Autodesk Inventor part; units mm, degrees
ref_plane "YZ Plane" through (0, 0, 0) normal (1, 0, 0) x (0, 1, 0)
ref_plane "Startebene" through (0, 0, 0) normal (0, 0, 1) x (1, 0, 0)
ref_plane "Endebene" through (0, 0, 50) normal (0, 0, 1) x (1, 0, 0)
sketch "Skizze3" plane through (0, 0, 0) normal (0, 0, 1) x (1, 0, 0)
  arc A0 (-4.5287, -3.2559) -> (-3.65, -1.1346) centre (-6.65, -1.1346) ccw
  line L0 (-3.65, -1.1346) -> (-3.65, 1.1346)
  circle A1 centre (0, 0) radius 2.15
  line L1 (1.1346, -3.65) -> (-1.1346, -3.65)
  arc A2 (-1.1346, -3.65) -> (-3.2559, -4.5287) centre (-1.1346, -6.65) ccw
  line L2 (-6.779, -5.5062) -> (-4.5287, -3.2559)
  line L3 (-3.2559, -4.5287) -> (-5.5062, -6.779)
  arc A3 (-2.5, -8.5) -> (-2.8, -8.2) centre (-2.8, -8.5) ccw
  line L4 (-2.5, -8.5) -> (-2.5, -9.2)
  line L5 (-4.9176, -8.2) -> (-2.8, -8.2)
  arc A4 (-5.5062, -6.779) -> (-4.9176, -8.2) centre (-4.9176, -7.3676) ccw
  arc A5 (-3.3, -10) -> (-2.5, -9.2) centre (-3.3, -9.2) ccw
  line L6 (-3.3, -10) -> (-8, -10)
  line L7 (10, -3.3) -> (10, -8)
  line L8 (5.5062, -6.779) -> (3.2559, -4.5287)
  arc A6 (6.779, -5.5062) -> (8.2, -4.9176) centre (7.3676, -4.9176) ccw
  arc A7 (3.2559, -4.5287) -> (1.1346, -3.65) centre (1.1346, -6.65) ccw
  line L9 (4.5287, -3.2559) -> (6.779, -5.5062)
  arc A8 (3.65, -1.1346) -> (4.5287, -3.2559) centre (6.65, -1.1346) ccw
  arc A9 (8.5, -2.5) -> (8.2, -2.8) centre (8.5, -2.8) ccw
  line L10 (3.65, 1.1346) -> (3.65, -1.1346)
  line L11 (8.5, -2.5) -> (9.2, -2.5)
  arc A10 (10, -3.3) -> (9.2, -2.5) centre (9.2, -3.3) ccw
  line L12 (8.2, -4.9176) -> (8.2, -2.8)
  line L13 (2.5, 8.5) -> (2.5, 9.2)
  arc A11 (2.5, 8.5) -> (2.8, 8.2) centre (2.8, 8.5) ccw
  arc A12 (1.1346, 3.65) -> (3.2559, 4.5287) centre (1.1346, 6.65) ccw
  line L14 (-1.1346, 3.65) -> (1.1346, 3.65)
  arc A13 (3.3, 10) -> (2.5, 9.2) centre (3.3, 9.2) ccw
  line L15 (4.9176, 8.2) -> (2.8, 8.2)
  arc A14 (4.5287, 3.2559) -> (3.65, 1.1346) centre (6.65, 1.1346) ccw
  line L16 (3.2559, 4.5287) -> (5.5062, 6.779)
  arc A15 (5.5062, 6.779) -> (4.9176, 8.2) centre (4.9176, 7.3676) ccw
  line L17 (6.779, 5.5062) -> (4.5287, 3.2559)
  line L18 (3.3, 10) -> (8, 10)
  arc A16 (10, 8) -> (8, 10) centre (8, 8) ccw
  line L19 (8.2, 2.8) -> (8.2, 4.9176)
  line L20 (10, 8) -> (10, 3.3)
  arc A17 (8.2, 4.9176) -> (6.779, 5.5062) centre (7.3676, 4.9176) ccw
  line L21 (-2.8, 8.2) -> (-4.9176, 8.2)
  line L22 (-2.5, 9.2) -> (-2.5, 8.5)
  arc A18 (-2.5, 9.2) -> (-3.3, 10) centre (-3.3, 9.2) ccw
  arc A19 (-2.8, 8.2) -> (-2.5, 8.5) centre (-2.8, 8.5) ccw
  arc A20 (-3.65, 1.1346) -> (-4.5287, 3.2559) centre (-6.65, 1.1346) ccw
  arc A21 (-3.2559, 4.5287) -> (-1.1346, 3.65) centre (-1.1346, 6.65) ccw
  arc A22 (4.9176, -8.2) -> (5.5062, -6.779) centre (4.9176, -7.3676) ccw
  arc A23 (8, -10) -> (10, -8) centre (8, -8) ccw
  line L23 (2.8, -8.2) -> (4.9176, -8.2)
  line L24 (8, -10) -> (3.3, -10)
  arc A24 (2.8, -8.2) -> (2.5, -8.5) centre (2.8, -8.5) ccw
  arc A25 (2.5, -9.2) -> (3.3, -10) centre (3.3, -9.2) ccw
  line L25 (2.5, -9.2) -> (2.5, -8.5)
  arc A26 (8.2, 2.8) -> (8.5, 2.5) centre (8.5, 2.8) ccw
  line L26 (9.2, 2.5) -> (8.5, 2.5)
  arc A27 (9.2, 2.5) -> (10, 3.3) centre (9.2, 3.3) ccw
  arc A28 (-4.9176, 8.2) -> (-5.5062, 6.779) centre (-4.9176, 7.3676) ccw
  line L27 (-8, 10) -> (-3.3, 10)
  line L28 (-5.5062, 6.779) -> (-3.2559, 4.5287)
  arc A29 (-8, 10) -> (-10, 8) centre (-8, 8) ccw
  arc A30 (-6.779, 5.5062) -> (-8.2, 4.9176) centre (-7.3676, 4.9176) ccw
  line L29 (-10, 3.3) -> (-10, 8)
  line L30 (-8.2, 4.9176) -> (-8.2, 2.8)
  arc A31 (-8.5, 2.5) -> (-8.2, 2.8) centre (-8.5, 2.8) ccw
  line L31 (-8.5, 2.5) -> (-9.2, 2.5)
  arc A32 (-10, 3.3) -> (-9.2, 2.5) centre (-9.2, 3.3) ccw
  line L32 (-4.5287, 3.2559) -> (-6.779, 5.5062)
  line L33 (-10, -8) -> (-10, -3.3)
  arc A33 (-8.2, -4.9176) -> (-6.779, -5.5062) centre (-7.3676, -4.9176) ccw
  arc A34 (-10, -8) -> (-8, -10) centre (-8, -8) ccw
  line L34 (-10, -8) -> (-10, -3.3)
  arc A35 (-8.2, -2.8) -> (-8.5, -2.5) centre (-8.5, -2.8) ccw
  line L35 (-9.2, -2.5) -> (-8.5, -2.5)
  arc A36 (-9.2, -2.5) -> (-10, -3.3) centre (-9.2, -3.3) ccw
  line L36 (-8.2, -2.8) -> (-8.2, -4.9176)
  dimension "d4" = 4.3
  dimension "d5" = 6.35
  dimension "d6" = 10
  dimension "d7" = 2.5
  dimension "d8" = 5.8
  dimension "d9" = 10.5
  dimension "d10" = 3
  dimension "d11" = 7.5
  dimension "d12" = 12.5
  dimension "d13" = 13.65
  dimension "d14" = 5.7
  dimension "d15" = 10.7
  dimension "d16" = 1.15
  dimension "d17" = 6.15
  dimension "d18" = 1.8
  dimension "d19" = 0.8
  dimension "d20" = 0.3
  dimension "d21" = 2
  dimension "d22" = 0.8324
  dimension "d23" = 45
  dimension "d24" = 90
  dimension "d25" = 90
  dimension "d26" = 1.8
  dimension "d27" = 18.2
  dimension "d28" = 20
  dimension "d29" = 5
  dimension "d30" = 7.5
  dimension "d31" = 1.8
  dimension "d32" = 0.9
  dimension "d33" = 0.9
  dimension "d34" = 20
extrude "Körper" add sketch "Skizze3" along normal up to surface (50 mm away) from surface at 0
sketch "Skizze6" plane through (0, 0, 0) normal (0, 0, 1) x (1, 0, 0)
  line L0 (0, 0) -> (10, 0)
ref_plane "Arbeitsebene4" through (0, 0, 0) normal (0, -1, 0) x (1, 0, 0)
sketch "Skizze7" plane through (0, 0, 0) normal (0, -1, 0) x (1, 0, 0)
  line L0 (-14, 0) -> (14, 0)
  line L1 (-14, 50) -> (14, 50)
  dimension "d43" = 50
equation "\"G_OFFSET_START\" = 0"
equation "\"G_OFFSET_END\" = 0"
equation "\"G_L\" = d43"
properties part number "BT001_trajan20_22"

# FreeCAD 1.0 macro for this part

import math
import FreeCAD as App
import Part
import Sketcher
from FreeCAD import Vector

doc = App.newDocument("Part")
body = doc.addObject("PartDesign::Body", "Body")

# Sketch on XY plane
sketch1 = doc.addObject("Sketcher::SketchObject", "Sketch")
body.addObject(sketch1)
sketch1.AttachmentSupport = (doc.XY_Plane, [""])
sketch1.MapMode = "FlatFace"
sketch1.addGeometry([
    Part.ArcOfCircle(Part.Circle(Vector(-6.65, -1.13, 0), Vector(0, 0, 1), 3), math.radians(-45), math.radians(0)),  # 0
    Part.LineSegment(Vector(-4.53, -3.26, 0), Vector(-6.78, -5.51, 0)),  # 1
    Part.ArcOfCircle(Part.Circle(Vector(-7.37, -4.92, 0), Vector(0, 0, 1), 0.83), math.radians(180), math.radians(315)),  # 2
    Part.LineSegment(Vector(-8.2, -4.92, 0), Vector(-8.2, -2.8, 0)),  # 3
    Part.ArcOfCircle(Part.Circle(Vector(-8.5, -2.8, 0), Vector(0, 0, 1), 0.3), math.radians(0), math.radians(90)),  # 4
    Part.LineSegment(Vector(-8.5, -2.5, 0), Vector(-9.2, -2.5, 0)),  # 5
    Part.ArcOfCircle(Part.Circle(Vector(-9.2, -3.3, 0), Vector(0, 0, 1), 0.8), math.radians(90), math.radians(180)),  # 6
    Part.LineSegment(Vector(-10, -3.3, 0), Vector(-10, -8, 0)),  # 7
    Part.ArcOfCircle(Part.Circle(Vector(-8, -8, 0), Vector(0, 0, 1), 2), math.radians(180), math.radians(270)),  # 8
    Part.LineSegment(Vector(-8, -10, 0), Vector(-3.3, -10, 0)),  # 9
    Part.ArcOfCircle(Part.Circle(Vector(-3.3, -9.2, 0), Vector(0, 0, 1), 0.8), math.radians(-90), math.radians(0)),  # 10
    Part.LineSegment(Vector(-2.5, -9.2, 0), Vector(-2.5, -8.5, 0)),  # 11
    Part.ArcOfCircle(Part.Circle(Vector(-2.8, -8.5, 0), Vector(0, 0, 1), 0.3), math.radians(0), math.radians(90)),  # 12
    Part.LineSegment(Vector(-2.8, -8.2, 0), Vector(-4.92, -8.2, 0)),  # 13
    Part.ArcOfCircle(Part.Circle(Vector(-4.92, -7.37, 0), Vector(0, 0, 1), 0.83), math.radians(135), math.radians(270)),  # 14
    Part.LineSegment(Vector(-5.51, -6.78, 0), Vector(-3.26, -4.53, 0)),  # 15
    Part.ArcOfCircle(Part.Circle(Vector(-1.13, -6.65, 0), Vector(0, 0, 1), 3), math.radians(90), math.radians(135)),  # 16
    Part.LineSegment(Vector(-1.13, -3.65, 0), Vector(1.13, -3.65, 0)),  # 17
    Part.ArcOfCircle(Part.Circle(Vector(1.13, -6.65, 0), Vector(0, 0, 1), 3), math.radians(45), math.radians(90)),  # 18
    Part.LineSegment(Vector(3.26, -4.53, 0), Vector(5.51, -6.78, 0)),  # 19
    Part.ArcOfCircle(Part.Circle(Vector(4.92, -7.37, 0), Vector(0, 0, 1), 0.83), math.radians(-90), math.radians(45)),  # 20
    Part.LineSegment(Vector(4.92, -8.2, 0), Vector(2.8, -8.2, 0)),  # 21
    Part.ArcOfCircle(Part.Circle(Vector(2.8, -8.5, 0), Vector(0, 0, 1), 0.3), math.radians(90), math.radians(180)),  # 22
    Part.LineSegment(Vector(2.5, -8.5, 0), Vector(2.5, -9.2, 0)),  # 23
    Part.ArcOfCircle(Part.Circle(Vector(3.3, -9.2, 0), Vector(0, 0, 1), 0.8), math.radians(180), math.radians(270)),  # 24
    Part.LineSegment(Vector(3.3, -10, 0), Vector(8, -10, 0)),  # 25
    Part.ArcOfCircle(Part.Circle(Vector(8, -8, 0), Vector(0, 0, 1), 2), math.radians(-90), math.radians(0)),  # 26
    Part.LineSegment(Vector(10, -8, 0), Vector(10, -3.3, 0)),  # 27
    Part.ArcOfCircle(Part.Circle(Vector(9.2, -3.3, 0), Vector(0, 0, 1), 0.8), math.radians(0), math.radians(90)),  # 28
    Part.LineSegment(Vector(9.2, -2.5, 0), Vector(8.5, -2.5, 0)),  # 29
    Part.ArcOfCircle(Part.Circle(Vector(8.5, -2.8, 0), Vector(0, 0, 1), 0.3), math.radians(90), math.radians(180)),  # 30
    Part.LineSegment(Vector(8.2, -2.8, 0), Vector(8.2, -4.92, 0)),  # 31
    Part.ArcOfCircle(Part.Circle(Vector(7.37, -4.92, 0), Vector(0, 0, 1), 0.83), math.radians(-135), math.radians(0)),  # 32
    Part.LineSegment(Vector(6.78, -5.51, 0), Vector(4.53, -3.26, 0)),  # 33
    Part.ArcOfCircle(Part.Circle(Vector(6.65, -1.13, 0), Vector(0, 0, 1), 3), math.radians(180), math.radians(225)),  # 34
    Part.LineSegment(Vector(3.65, -1.13, 0), Vector(3.65, 1.13, 0)),  # 35
    Part.ArcOfCircle(Part.Circle(Vector(6.65, 1.13, 0), Vector(0, 0, 1), 3), math.radians(135), math.radians(180)),  # 36
    Part.LineSegment(Vector(4.53, 3.26, 0), Vector(6.78, 5.51, 0)),  # 37
    Part.ArcOfCircle(Part.Circle(Vector(7.37, 4.92, 0), Vector(0, 0, 1), 0.83), math.radians(0), math.radians(135)),  # 38
    Part.LineSegment(Vector(8.2, 4.92, 0), Vector(8.2, 2.8, 0)),  # 39
    Part.ArcOfCircle(Part.Circle(Vector(8.5, 2.8, 0), Vector(0, 0, 1), 0.3), math.radians(180), math.radians(270)),  # 40
    Part.LineSegment(Vector(8.5, 2.5, 0), Vector(9.2, 2.5, 0)),  # 41
    Part.ArcOfCircle(Part.Circle(Vector(9.2, 3.3, 0), Vector(0, 0, 1), 0.8), math.radians(-90), math.radians(0)),  # 42
    Part.LineSegment(Vector(10, 3.3, 0), Vector(10, 8, 0)),  # 43
    Part.ArcOfCircle(Part.Circle(Vector(8, 8, 0), Vector(0, 0, 1), 2), math.radians(0), math.radians(90)),  # 44
    Part.LineSegment(Vector(8, 10, 0), Vector(3.3, 10, 0)),  # 45
    Part.ArcOfCircle(Part.Circle(Vector(3.3, 9.2, 0), Vector(0, 0, 1), 0.8), math.radians(90), math.radians(180)),  # 46
    Part.LineSegment(Vector(2.5, 9.2, 0), Vector(2.5, 8.5, 0)),  # 47
    Part.ArcOfCircle(Part.Circle(Vector(2.8, 8.5, 0), Vector(0, 0, 1), 0.3), math.radians(180), math.radians(270)),  # 48
    Part.LineSegment(Vector(2.8, 8.2, 0), Vector(4.92, 8.2, 0)),  # 49
    Part.ArcOfCircle(Part.Circle(Vector(4.92, 7.37, 0), Vector(0, 0, 1), 0.83), math.radians(-45), math.radians(90)),  # 50
    Part.LineSegment(Vector(5.51, 6.78, 0), Vector(3.26, 4.53, 0)),  # 51
    Part.ArcOfCircle(Part.Circle(Vector(1.13, 6.65, 0), Vector(0, 0, 1), 3), math.radians(-90), math.radians(-45)),  # 52
    Part.LineSegment(Vector(1.13, 3.65, 0), Vector(-1.13, 3.65, 0)),  # 53
    Part.ArcOfCircle(Part.Circle(Vector(-1.13, 6.65, 0), Vector(0, 0, 1), 3), math.radians(-135), math.radians(-90)),  # 54
    Part.LineSegment(Vector(-3.26, 4.53, 0), Vector(-5.51, 6.78, 0)),  # 55
    Part.ArcOfCircle(Part.Circle(Vector(-4.92, 7.37, 0), Vector(0, 0, 1), 0.83), math.radians(90), math.radians(225)),  # 56
    Part.LineSegment(Vector(-4.92, 8.2, 0), Vector(-2.8, 8.2, 0)),  # 57
    Part.ArcOfCircle(Part.Circle(Vector(-2.8, 8.5, 0), Vector(0, 0, 1), 0.3), math.radians(-90), math.radians(0)),  # 58
    Part.LineSegment(Vector(-2.5, 8.5, 0), Vector(-2.5, 9.2, 0)),  # 59
    Part.ArcOfCircle(Part.Circle(Vector(-3.3, 9.2, 0), Vector(0, 0, 1), 0.8), math.radians(0), math.radians(90)),  # 60
    Part.LineSegment(Vector(-3.3, 10, 0), Vector(-8, 10, 0)),  # 61
    Part.ArcOfCircle(Part.Circle(Vector(-8, 8, 0), Vector(0, 0, 1), 2), math.radians(90), math.radians(180)),  # 62
    Part.LineSegment(Vector(-10, 8, 0), Vector(-10, 3.3, 0)),  # 63
    Part.ArcOfCircle(Part.Circle(Vector(-9.2, 3.3, 0), Vector(0, 0, 1), 0.8), math.radians(180), math.radians(270)),  # 64
    Part.LineSegment(Vector(-9.2, 2.5, 0), Vector(-8.5, 2.5, 0)),  # 65
    Part.ArcOfCircle(Part.Circle(Vector(-8.5, 2.8, 0), Vector(0, 0, 1), 0.3), math.radians(-90), math.radians(0)),  # 66
    Part.LineSegment(Vector(-8.2, 2.8, 0), Vector(-8.2, 4.92, 0)),  # 67
    Part.ArcOfCircle(Part.Circle(Vector(-7.37, 4.92, 0), Vector(0, 0, 1), 0.83), math.radians(45), math.radians(180)),  # 68
    Part.LineSegment(Vector(-6.78, 5.51, 0), Vector(-4.53, 3.26, 0)),  # 69
    Part.ArcOfCircle(Part.Circle(Vector(-6.65, 1.13, 0), Vector(0, 0, 1), 3), math.radians(0), math.radians(45)),  # 70
    Part.LineSegment(Vector(-3.65, 1.13, 0), Vector(-3.65, -1.13, 0)),  # 71
    Part.Circle(Vector(0, 0, 0), Vector(0, 0, 1), 2.15),  # 72
], False)
sketch1.addConstraint([
    Sketcher.Constraint("Tangent", 0, 1, 1, 1),
    Sketcher.Constraint("Tangent", 1, 2, 2, 2),
    Sketcher.Constraint("Tangent", 2, 1, 3, 1),
    Sketcher.Constraint("Tangent", 3, 2, 4, 1),
    Sketcher.Constraint("Tangent", 4, 2, 5, 1),
    Sketcher.Constraint("Tangent", 5, 2, 6, 1),
    Sketcher.Constraint("Tangent", 6, 2, 7, 1),
    Sketcher.Constraint("Tangent", 7, 2, 8, 1),
    Sketcher.Constraint("Tangent", 8, 2, 9, 1),
    Sketcher.Constraint("Tangent", 9, 2, 10, 1),
    Sketcher.Constraint("Tangent", 10, 2, 11, 1),
    Sketcher.Constraint("Tangent", 11, 2, 12, 1),
    Sketcher.Constraint("Tangent", 12, 2, 13, 1),
    Sketcher.Constraint("Tangent", 13, 2, 14, 2),
    Sketcher.Constraint("Tangent", 14, 1, 15, 1),
    Sketcher.Constraint("Tangent", 15, 2, 16, 2),
    Sketcher.Constraint("Tangent", 16, 1, 17, 1),
    Sketcher.Constraint("Tangent", 17, 2, 18, 2),
    Sketcher.Constraint("Tangent", 18, 1, 19, 1),
    Sketcher.Constraint("Tangent", 19, 2, 20, 2),
    Sketcher.Constraint("Tangent", 20, 1, 21, 1),
    Sketcher.Constraint("Tangent", 21, 2, 22, 1),
    Sketcher.Constraint("Tangent", 22, 2, 23, 1),
    Sketcher.Constraint("Tangent", 23, 2, 24, 1),
    Sketcher.Constraint("Tangent", 24, 2, 25, 1),
    Sketcher.Constraint("Tangent", 25, 2, 26, 1),
    Sketcher.Constraint("Tangent", 26, 2, 27, 1),
    Sketcher.Constraint("Tangent", 27, 2, 28, 1),
    Sketcher.Constraint("Tangent", 28, 2, 29, 1),
    Sketcher.Constraint("Tangent", 29, 2, 30, 1),
    Sketcher.Constraint("Tangent", 30, 2, 31, 1),
    Sketcher.Constraint("Tangent", 31, 2, 32, 2),
    Sketcher.Constraint("Tangent", 32, 1, 33, 1),
    Sketcher.Constraint("Tangent", 33, 2, 34, 2),
    Sketcher.Constraint("Tangent", 34, 1, 35, 1),
    Sketcher.Constraint("Tangent", 35, 2, 36, 2),
    Sketcher.Constraint("Tangent", 36, 1, 37, 1),
    Sketcher.Constraint("Tangent", 37, 2, 38, 2),
    Sketcher.Constraint("Tangent", 38, 1, 39, 1),
    Sketcher.Constraint("Tangent", 39, 2, 40, 1),
    Sketcher.Constraint("Tangent", 40, 2, 41, 1),
    Sketcher.Constraint("Tangent", 41, 2, 42, 1),
    Sketcher.Constraint("Tangent", 42, 2, 43, 1),
    Sketcher.Constraint("Tangent", 43, 2, 44, 1),
    Sketcher.Constraint("Tangent", 44, 2, 45, 1),
    Sketcher.Constraint("Tangent", 45, 2, 46, 1),
    Sketcher.Constraint("Tangent", 46, 2, 47, 1),
    Sketcher.Constraint("Tangent", 47, 2, 48, 1),
    Sketcher.Constraint("Tangent", 48, 2, 49, 1),
    Sketcher.Constraint("Tangent", 49, 2, 50, 2),
    Sketcher.Constraint("Tangent", 50, 1, 51, 1),
    Sketcher.Constraint("Tangent", 51, 2, 52, 2),
    Sketcher.Constraint("Tangent", 52, 1, 53, 1),
    Sketcher.Constraint("Tangent", 53, 2, 54, 2),
    Sketcher.Constraint("Tangent", 54, 1, 55, 1),
    Sketcher.Constraint("Tangent", 55, 2, 56, 2),
    Sketcher.Constraint("Tangent", 56, 1, 57, 1),
    Sketcher.Constraint("Tangent", 57, 2, 58, 1),
    Sketcher.Constraint("Tangent", 58, 2, 59, 1),
    Sketcher.Constraint("Tangent", 59, 2, 60, 1),
    Sketcher.Constraint("Tangent", 60, 2, 61, 1),
    Sketcher.Constraint("Tangent", 61, 2, 62, 1),
    Sketcher.Constraint("Tangent", 62, 2, 63, 1),
    Sketcher.Constraint("Tangent", 63, 2, 64, 1),
    Sketcher.Constraint("Tangent", 64, 2, 65, 1),
    Sketcher.Constraint("Tangent", 65, 2, 66, 1),
    Sketcher.Constraint("Tangent", 66, 2, 67, 1),
    Sketcher.Constraint("Tangent", 67, 2, 68, 2),
    Sketcher.Constraint("Tangent", 68, 1, 69, 1),
    Sketcher.Constraint("Tangent", 69, 2, 70, 2),
    Sketcher.Constraint("Tangent", 70, 1, 71, 1),
    Sketcher.Constraint("Tangent", 71, 2, 0, 2),
    Sketcher.Constraint("Vertical", 3),
    Sketcher.Constraint("Horizontal", 5),
    Sketcher.Constraint("Vertical", 7),
    Sketcher.Constraint("Horizontal", 9),
    Sketcher.Constraint("Vertical", 11),
    Sketcher.Constraint("Horizontal", 13),
    Sketcher.Constraint("Horizontal", 17),
    Sketcher.Constraint("Horizontal", 21),
    Sketcher.Constraint("Vertical", 23),
    Sketcher.Constraint("Horizontal", 25),
    Sketcher.Constraint("Vertical", 27),
    Sketcher.Constraint("Horizontal", 29),
    Sketcher.Constraint("Vertical", 31),
    Sketcher.Constraint("Vertical", 35),
    Sketcher.Constraint("Vertical", 39),
    Sketcher.Constraint("Horizontal", 41),
    Sketcher.Constraint("Vertical", 43),
    Sketcher.Constraint("Horizontal", 45),
    Sketcher.Constraint("Vertical", 47),
    Sketcher.Constraint("Horizontal", 49),
    Sketcher.Constraint("Horizontal", 53),
    Sketcher.Constraint("Horizontal", 57),
    Sketcher.Constraint("Vertical", 59),
    Sketcher.Constraint("Horizontal", 61),
    Sketcher.Constraint("Vertical", 63),
    Sketcher.Constraint("Horizontal", 65),
    Sketcher.Constraint("Vertical", 67),
    Sketcher.Constraint("Vertical", 71),
    Sketcher.Constraint("Coincident", 72, 3, -1, 1),
    Sketcher.Constraint("Equal", 6, 10),
    Sketcher.Constraint("Equal", 4, 12),
    Sketcher.Constraint("Equal", 2, 14),
    Sketcher.Constraint("Equal", 0, 16),
    Sketcher.Constraint("Equal", 16, 18),
    Sketcher.Constraint("Equal", 14, 20),
    Sketcher.Constraint("Equal", 12, 22),
    Sketcher.Constraint("Equal", 10, 24),
    Sketcher.Constraint("Equal", 8, 26),
    Sketcher.Constraint("Equal", 24, 28),
    Sketcher.Constraint("Equal", 22, 30),
    Sketcher.Constraint("Equal", 20, 32),
    Sketcher.Constraint("Equal", 18, 34),
    Sketcher.Constraint("Equal", 34, 36),
    Sketcher.Constraint("Equal", 32, 38),
    Sketcher.Constraint("Equal", 30, 40),
    Sketcher.Constraint("Equal", 28, 42),
    Sketcher.Constraint("Equal", 26, 44),
    Sketcher.Constraint("Equal", 42, 46),
    Sketcher.Constraint("Equal", 40, 48),
    Sketcher.Constraint("Equal", 38, 50),
    Sketcher.Constraint("Equal", 36, 52),
    Sketcher.Constraint("Equal", 52, 54),
    Sketcher.Constraint("Equal", 50, 56),
    Sketcher.Constraint("Equal", 48, 58),
    Sketcher.Constraint("Equal", 46, 60),
    Sketcher.Constraint("Equal", 44, 62),
    Sketcher.Constraint("Equal", 60, 64),
    Sketcher.Constraint("Equal", 58, 66),
    Sketcher.Constraint("Equal", 56, 68),
    Sketcher.Constraint("Equal", 54, 70),
    Sketcher.Constraint("Symmetric", 0, 3, 36, 3, -1, 1),
    Sketcher.Constraint("Symmetric", 2, 3, 38, 3, -1, 1),
    Sketcher.Constraint("Symmetric", 6, 3, 42, 3, -1, 1),
    Sketcher.Constraint("Symmetric", 10, 3, 46, 3, -1, 1),
    Sketcher.Constraint("Symmetric", 14, 3, 50, 3, -1, 1),
    Sketcher.Constraint("Symmetric", 16, 3, 52, 3, -1, 1),
    Sketcher.Constraint("Symmetric", 20, 3, 56, 3, -1, 1),
    Sketcher.Constraint("Symmetric", 24, 3, 60, 3, -1, 1),
    Sketcher.Constraint("Symmetric", 28, 3, 64, 3, -1, 1),
    Sketcher.Constraint("Symmetric", 32, 3, 68, 3, -1, 1),
    Sketcher.Constraint("Symmetric", 14, 3, 20, 3, -2),
    Sketcher.Constraint("Symmetric", 10, 3, 24, 3, -2),
    Sketcher.Constraint("Symmetric", 6, 3, 28, 3, -2),
    Sketcher.Constraint("Symmetric", 2, 3, 32, 3, -2),
    Sketcher.Constraint("Parallel", 1, 15),
    Sketcher.Constraint("Perpendicular", 15, 19),
    Sketcher.Constraint("Parallel", 19, 33),
    Sketcher.Constraint("Perpendicular", 51, 55),
    Sketcher.Constraint("Parallel", 55, 69),
    Sketcher.Constraint("Horizontal", 0, 3, 34, 3),
    Sketcher.Constraint("Equal", 57, 3),
    Sketcher.Constraint("Equal", 61, 7),
    Sketcher.Constraint("Equal", 65, 11),
    Sketcher.Constraint("Equal", 53, 35),
    Sketcher.Constraint("Equal", 1, 15),
    Sketcher.Constraint("Radius", 0, 3.0),
    Sketcher.Constraint("Radius", 8, 2.0),
    Sketcher.Constraint("Diameter", 72, 4.3),
    Sketcher.Constraint("Radius", 4, 0.3),
    Sketcher.Constraint("Radius", 6, 0.8),
    Sketcher.Constraint("DistanceX", 6, 2, -1, 1, 10.0),
    Sketcher.Constraint("DistanceY", 4, 2, -1, 1, 2.5),
    Sketcher.Constraint("Radius", 2, 0.8324),
    Sketcher.Constraint("DistanceX", 5, 2, 5, 1, 0.7),
    Sketcher.Constraint("DistanceX", 0, 3, -1, 1, 6.65),
    Sketcher.Constraint("DistanceX", 13, 2, 13, 1, 2.1176),
])
pad1 = doc.addObject("PartDesign::Pad", "Pad")
body.addObject(pad1)
pad1.Profile = sketch1
pad1.Length = 50

doc.recompute()
